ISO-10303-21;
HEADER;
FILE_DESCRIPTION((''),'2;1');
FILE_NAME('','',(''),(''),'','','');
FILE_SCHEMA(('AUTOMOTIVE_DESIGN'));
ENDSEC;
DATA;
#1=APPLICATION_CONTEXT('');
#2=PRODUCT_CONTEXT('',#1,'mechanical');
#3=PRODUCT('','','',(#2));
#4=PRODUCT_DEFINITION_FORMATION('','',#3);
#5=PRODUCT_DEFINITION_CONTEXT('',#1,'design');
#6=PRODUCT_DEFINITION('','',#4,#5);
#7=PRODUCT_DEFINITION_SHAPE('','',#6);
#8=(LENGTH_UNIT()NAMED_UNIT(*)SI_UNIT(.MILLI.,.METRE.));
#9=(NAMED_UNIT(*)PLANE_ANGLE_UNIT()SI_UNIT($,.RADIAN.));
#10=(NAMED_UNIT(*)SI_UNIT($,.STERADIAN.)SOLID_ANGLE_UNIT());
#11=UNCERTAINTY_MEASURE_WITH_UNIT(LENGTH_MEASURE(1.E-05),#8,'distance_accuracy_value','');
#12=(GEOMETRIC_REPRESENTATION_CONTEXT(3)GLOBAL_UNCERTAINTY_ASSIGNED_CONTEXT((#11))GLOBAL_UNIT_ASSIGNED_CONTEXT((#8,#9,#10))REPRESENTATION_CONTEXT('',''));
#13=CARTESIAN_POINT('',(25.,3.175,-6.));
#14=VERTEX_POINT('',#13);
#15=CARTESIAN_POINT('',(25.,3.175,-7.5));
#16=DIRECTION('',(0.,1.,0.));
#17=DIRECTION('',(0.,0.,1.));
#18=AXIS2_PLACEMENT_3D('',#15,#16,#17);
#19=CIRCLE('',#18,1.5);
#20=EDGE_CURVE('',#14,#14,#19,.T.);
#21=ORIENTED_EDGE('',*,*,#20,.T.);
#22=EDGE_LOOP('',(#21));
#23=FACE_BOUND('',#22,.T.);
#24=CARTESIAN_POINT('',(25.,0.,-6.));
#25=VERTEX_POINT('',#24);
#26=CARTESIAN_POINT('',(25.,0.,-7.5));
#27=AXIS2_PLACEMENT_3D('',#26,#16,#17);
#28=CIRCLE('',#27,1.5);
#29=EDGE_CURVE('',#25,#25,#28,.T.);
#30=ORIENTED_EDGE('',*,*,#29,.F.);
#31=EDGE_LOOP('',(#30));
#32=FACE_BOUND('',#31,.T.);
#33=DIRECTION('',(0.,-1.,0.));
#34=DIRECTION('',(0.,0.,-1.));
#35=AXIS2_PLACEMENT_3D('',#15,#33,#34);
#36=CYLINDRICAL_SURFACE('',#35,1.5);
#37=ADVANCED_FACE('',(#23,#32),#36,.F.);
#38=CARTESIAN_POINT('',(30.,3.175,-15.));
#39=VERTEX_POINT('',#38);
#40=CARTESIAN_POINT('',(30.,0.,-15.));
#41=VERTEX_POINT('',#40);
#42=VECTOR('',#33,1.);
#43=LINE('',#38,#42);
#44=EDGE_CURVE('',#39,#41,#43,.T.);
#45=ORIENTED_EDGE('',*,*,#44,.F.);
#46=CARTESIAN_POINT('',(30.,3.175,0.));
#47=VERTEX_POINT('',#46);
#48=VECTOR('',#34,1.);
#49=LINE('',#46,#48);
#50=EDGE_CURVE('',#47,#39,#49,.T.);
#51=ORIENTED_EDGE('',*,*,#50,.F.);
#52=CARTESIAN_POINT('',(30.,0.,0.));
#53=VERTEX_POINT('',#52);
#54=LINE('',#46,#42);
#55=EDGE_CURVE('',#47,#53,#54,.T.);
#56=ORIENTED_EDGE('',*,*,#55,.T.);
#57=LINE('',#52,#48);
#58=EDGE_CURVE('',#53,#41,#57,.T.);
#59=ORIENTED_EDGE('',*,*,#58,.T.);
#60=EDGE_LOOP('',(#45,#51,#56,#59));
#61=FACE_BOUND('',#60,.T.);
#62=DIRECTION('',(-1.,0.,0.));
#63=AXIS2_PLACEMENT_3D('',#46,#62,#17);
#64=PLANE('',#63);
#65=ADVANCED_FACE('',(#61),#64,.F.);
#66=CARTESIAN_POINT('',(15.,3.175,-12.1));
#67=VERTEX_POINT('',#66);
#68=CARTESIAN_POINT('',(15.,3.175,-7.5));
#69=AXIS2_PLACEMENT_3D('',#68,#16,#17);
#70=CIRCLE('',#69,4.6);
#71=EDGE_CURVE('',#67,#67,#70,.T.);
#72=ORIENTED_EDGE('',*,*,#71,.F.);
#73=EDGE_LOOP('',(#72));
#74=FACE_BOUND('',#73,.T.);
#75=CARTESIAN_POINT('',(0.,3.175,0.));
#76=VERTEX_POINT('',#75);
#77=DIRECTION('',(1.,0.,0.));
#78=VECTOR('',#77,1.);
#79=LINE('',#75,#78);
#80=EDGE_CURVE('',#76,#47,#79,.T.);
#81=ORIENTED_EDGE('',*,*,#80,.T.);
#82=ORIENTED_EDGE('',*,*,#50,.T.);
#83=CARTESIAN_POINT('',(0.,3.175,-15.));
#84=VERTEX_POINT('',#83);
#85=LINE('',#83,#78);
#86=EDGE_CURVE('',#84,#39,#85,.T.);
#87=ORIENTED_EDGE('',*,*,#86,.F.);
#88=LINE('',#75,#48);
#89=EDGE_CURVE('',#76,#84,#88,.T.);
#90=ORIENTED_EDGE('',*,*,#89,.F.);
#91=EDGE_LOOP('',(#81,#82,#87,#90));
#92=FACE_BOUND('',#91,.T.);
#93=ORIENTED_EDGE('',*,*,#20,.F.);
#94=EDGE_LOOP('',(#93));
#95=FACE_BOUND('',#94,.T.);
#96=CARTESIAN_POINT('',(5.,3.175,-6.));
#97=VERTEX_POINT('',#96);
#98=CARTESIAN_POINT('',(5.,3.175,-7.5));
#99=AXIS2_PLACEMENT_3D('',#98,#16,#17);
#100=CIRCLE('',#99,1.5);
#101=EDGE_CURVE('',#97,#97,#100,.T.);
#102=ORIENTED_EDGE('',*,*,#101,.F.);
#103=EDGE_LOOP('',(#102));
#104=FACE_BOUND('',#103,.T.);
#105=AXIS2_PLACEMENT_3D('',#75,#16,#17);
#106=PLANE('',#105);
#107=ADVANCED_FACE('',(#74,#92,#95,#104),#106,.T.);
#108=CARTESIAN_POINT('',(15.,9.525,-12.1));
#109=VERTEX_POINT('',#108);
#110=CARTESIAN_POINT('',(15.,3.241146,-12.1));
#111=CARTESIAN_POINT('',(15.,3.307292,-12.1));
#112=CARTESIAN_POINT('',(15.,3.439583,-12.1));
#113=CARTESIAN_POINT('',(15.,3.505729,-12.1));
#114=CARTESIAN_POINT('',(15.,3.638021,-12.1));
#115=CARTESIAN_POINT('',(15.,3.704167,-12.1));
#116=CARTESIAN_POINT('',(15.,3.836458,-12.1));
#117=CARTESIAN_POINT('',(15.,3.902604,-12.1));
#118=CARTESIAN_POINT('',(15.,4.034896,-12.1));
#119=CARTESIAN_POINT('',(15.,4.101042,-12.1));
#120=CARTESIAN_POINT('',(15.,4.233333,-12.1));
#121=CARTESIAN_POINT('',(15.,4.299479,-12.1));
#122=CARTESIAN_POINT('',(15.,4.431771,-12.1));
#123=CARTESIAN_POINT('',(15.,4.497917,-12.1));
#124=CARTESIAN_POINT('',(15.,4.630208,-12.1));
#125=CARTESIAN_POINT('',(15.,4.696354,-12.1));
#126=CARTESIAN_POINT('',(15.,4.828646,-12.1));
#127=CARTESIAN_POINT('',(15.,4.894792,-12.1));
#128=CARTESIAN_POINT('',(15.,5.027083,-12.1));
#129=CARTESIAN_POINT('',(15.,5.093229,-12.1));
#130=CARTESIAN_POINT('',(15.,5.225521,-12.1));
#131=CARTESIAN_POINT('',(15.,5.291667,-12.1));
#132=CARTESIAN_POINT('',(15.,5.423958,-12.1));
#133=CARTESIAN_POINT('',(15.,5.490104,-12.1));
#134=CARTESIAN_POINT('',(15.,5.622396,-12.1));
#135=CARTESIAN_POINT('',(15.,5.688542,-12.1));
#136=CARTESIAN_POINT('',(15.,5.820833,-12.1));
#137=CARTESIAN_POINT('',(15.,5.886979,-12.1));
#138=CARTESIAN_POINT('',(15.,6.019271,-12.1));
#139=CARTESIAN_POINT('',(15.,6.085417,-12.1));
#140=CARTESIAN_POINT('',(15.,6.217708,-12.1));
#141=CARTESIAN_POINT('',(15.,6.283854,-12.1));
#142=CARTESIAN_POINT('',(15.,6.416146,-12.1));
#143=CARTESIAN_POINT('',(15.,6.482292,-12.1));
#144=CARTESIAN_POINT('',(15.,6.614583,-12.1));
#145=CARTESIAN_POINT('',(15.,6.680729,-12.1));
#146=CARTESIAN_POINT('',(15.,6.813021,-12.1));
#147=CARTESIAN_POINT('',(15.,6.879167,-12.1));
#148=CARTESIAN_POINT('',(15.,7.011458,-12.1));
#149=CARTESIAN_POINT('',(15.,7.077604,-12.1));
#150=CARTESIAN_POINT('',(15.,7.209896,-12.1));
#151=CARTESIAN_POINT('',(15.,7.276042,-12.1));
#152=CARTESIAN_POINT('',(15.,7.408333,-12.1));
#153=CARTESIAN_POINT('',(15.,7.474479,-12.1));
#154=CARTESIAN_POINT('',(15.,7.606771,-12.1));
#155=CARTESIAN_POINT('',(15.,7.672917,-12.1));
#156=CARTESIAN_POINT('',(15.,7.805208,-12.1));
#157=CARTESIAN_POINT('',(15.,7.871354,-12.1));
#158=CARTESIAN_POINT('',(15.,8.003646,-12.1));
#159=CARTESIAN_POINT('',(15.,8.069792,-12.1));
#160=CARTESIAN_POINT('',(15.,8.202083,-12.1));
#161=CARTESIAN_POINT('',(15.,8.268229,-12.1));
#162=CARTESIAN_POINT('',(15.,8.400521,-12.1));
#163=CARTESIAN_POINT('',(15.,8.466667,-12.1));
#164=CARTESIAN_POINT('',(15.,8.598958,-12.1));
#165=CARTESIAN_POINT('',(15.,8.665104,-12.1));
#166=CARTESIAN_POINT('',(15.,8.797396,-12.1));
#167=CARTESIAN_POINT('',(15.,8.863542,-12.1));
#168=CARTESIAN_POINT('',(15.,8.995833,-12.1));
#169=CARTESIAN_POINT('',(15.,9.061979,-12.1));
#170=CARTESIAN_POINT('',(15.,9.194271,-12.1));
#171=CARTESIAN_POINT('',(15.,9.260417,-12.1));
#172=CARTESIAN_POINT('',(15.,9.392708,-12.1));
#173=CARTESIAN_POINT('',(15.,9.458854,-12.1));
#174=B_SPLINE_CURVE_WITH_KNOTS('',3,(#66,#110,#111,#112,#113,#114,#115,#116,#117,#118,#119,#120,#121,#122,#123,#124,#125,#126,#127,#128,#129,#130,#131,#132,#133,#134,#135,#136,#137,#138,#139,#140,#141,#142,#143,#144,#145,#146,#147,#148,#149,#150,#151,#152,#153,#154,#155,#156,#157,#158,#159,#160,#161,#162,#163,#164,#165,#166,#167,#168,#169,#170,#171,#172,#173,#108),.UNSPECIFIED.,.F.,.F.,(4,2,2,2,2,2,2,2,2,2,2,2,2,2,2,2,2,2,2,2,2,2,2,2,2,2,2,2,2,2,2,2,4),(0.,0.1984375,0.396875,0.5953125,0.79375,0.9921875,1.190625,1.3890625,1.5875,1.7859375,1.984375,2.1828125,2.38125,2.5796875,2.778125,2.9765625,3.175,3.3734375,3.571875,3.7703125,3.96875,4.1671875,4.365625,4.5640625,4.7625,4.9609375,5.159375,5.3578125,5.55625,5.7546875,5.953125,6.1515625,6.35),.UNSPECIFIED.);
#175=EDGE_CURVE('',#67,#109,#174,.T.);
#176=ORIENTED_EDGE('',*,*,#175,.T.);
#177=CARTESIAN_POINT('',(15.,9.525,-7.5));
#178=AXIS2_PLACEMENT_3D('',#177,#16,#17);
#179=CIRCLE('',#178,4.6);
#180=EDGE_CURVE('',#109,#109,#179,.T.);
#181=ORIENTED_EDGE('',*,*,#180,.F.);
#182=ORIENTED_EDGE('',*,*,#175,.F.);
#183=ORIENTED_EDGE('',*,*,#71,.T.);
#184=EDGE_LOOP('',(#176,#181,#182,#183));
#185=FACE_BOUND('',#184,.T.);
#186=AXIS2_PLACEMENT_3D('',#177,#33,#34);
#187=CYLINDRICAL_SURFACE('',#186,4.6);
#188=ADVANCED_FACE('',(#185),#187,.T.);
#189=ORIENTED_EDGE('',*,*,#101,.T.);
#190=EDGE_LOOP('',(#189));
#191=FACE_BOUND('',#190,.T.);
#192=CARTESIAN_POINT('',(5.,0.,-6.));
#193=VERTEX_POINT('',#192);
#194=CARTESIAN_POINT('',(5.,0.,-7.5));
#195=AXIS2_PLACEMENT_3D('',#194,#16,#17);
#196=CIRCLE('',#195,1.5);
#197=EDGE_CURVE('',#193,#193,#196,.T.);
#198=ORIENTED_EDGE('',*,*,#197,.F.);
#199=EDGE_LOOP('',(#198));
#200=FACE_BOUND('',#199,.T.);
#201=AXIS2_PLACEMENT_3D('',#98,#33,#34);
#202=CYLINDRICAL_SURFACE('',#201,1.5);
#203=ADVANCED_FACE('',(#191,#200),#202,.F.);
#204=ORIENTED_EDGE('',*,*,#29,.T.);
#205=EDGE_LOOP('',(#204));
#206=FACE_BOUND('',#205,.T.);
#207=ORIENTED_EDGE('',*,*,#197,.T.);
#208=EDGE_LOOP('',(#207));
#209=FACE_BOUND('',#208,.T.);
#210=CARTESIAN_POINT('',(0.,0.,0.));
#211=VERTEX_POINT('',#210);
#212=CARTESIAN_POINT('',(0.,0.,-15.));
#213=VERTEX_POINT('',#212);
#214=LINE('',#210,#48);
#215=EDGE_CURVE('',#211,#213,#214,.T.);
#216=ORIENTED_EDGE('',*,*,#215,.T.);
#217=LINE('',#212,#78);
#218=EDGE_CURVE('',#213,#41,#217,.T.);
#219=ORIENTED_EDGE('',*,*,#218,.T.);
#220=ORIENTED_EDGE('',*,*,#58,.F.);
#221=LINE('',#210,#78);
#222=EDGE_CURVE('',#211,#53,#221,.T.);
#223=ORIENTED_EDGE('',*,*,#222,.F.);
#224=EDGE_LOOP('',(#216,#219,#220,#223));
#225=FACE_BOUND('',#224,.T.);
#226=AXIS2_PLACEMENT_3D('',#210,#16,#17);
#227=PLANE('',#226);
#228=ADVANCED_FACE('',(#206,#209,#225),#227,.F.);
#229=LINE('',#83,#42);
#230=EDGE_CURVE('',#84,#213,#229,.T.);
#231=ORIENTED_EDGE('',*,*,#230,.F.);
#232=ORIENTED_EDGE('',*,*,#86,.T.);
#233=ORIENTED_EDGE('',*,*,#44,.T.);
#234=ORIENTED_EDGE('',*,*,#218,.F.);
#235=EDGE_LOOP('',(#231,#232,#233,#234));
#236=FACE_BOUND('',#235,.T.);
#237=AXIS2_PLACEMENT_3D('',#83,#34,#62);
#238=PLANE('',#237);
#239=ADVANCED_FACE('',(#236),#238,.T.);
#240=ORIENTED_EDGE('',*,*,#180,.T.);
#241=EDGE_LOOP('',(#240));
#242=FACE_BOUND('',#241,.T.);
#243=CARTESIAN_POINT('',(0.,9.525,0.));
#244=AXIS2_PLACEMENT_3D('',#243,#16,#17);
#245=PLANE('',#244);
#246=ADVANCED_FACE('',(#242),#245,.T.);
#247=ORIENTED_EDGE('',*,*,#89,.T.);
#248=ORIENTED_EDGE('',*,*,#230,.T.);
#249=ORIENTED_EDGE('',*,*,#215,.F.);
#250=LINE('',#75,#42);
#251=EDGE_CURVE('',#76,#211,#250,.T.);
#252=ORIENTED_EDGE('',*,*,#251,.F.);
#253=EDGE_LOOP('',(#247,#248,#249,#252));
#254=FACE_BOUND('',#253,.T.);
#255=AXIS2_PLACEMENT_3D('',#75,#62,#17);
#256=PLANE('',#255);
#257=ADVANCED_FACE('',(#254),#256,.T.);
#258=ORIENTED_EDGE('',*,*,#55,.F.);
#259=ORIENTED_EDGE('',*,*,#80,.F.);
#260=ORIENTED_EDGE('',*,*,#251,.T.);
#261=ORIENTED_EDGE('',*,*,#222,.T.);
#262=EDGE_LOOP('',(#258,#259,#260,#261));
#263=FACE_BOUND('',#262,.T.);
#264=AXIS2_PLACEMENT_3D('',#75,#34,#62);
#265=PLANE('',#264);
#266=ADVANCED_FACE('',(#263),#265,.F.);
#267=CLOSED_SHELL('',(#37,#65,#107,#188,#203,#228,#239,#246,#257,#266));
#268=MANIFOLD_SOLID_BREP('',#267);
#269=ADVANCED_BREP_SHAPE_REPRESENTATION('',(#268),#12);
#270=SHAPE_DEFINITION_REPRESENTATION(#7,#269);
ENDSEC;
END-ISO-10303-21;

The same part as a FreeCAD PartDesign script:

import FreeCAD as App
import Part
import Sketcher
from FreeCAD import Vector
Q = App.Units.Quantity


def add_polygon(sketch, points):
    """Adds a closed chain of lines whose ends are joined by coincident constraints."""
    first, n = sketch.GeometryCount, len(points)
    for a, b in zip(points, points[1:] + points[:1]):
        sketch.addGeometry(Part.LineSegment(App.Vector(*a, 0), App.Vector(*b, 0)), False)
    for i in range(n):
        sketch.addConstraint(Sketcher.Constraint("Coincident", first + i, 2, first + (i + 1) % n, 1))

doc = App.newDocument("Part")
body = doc.addObject("PartDesign::Body", "Body")

# Sketch on XZ plane
sketch1 = body.newObject("Sketcher::SketchObject", "Sketch")
sketch1.AttachmentSupport = (doc.getObject("XZ_Plane"), [""])
sketch1.MapMode = "FlatFace"
sketch1.addGeometry(Part.Circle(Vector(15, -7.5, 0), Vector(0, 0, 1), 4.6), False)
sketch1.addConstraint([
    Sketcher.Constraint("Diameter", 0, Q("9.2 mm")),
    Sketcher.Constraint("DistanceX", -1, 1, 0, 3, Q("15 mm")),
    Sketcher.Constraint("DistanceY", 0, 3, -1, 1, Q("7.5 mm")),
])
pad1 = body.newObject("PartDesign::Pad", "Pad")
pad1.Profile = sketch1
pad1.Length = 9.525
pad1.Reversed = True

# Sketch on XZ plane
sketch2 = body.newObject("Sketcher::SketchObject", "Sketch001")
sketch2.AttachmentSupport = (doc.getObject("XZ_Plane"), [""])
sketch2.MapMode = "FlatFace"
add_polygon(sketch2, [(0, -15), (0, 0), (30, 0), (30, -15)])  # lines 0-3
sketch2.addGeometry(Part.Circle(Vector(5, -7.5, 0), Vector(0, 0, 1), 1.5), False)  # 4
sketch2.addGeometry(Part.Circle(Vector(25, -7.5, 0), Vector(0, 0, 1), 1.5), False)  # 5
sketch2.addConstraint([
    Sketcher.Constraint("Vertical", 0),
    Sketcher.Constraint("Horizontal", 1),
    Sketcher.Constraint("Vertical", 2),
    Sketcher.Constraint("Horizontal", 3),
    Sketcher.Constraint("Coincident", 0, 2, -1, 1),
    Sketcher.Constraint("Equal", 4, 5),
    Sketcher.Constraint("Horizontal", 4, 3, 5, 3),
    Sketcher.Constraint("Diameter", 4, Q("3 mm")),
    Sketcher.Constraint("DistanceX", 1, 1, 1, 2, Q("30 mm")),
    Sketcher.Constraint("DistanceY", 0, 1, 0, 2, Q("15 mm")),
    Sketcher.Constraint("DistanceX", -1, 1, 4, 3, Q("5 mm")),
    Sketcher.Constraint("DistanceX", -1, 1, 5, 3, Q("25 mm")),
    Sketcher.Constraint("DistanceY", 4, 3, -1, 1, Q("7.5 mm")),
])
pad2 = body.newObject("PartDesign::Pad", "Pad001")
pad2.Profile = sketch2
pad2.Length = 3.175
pad2.Reversed = True

doc.recompute()
